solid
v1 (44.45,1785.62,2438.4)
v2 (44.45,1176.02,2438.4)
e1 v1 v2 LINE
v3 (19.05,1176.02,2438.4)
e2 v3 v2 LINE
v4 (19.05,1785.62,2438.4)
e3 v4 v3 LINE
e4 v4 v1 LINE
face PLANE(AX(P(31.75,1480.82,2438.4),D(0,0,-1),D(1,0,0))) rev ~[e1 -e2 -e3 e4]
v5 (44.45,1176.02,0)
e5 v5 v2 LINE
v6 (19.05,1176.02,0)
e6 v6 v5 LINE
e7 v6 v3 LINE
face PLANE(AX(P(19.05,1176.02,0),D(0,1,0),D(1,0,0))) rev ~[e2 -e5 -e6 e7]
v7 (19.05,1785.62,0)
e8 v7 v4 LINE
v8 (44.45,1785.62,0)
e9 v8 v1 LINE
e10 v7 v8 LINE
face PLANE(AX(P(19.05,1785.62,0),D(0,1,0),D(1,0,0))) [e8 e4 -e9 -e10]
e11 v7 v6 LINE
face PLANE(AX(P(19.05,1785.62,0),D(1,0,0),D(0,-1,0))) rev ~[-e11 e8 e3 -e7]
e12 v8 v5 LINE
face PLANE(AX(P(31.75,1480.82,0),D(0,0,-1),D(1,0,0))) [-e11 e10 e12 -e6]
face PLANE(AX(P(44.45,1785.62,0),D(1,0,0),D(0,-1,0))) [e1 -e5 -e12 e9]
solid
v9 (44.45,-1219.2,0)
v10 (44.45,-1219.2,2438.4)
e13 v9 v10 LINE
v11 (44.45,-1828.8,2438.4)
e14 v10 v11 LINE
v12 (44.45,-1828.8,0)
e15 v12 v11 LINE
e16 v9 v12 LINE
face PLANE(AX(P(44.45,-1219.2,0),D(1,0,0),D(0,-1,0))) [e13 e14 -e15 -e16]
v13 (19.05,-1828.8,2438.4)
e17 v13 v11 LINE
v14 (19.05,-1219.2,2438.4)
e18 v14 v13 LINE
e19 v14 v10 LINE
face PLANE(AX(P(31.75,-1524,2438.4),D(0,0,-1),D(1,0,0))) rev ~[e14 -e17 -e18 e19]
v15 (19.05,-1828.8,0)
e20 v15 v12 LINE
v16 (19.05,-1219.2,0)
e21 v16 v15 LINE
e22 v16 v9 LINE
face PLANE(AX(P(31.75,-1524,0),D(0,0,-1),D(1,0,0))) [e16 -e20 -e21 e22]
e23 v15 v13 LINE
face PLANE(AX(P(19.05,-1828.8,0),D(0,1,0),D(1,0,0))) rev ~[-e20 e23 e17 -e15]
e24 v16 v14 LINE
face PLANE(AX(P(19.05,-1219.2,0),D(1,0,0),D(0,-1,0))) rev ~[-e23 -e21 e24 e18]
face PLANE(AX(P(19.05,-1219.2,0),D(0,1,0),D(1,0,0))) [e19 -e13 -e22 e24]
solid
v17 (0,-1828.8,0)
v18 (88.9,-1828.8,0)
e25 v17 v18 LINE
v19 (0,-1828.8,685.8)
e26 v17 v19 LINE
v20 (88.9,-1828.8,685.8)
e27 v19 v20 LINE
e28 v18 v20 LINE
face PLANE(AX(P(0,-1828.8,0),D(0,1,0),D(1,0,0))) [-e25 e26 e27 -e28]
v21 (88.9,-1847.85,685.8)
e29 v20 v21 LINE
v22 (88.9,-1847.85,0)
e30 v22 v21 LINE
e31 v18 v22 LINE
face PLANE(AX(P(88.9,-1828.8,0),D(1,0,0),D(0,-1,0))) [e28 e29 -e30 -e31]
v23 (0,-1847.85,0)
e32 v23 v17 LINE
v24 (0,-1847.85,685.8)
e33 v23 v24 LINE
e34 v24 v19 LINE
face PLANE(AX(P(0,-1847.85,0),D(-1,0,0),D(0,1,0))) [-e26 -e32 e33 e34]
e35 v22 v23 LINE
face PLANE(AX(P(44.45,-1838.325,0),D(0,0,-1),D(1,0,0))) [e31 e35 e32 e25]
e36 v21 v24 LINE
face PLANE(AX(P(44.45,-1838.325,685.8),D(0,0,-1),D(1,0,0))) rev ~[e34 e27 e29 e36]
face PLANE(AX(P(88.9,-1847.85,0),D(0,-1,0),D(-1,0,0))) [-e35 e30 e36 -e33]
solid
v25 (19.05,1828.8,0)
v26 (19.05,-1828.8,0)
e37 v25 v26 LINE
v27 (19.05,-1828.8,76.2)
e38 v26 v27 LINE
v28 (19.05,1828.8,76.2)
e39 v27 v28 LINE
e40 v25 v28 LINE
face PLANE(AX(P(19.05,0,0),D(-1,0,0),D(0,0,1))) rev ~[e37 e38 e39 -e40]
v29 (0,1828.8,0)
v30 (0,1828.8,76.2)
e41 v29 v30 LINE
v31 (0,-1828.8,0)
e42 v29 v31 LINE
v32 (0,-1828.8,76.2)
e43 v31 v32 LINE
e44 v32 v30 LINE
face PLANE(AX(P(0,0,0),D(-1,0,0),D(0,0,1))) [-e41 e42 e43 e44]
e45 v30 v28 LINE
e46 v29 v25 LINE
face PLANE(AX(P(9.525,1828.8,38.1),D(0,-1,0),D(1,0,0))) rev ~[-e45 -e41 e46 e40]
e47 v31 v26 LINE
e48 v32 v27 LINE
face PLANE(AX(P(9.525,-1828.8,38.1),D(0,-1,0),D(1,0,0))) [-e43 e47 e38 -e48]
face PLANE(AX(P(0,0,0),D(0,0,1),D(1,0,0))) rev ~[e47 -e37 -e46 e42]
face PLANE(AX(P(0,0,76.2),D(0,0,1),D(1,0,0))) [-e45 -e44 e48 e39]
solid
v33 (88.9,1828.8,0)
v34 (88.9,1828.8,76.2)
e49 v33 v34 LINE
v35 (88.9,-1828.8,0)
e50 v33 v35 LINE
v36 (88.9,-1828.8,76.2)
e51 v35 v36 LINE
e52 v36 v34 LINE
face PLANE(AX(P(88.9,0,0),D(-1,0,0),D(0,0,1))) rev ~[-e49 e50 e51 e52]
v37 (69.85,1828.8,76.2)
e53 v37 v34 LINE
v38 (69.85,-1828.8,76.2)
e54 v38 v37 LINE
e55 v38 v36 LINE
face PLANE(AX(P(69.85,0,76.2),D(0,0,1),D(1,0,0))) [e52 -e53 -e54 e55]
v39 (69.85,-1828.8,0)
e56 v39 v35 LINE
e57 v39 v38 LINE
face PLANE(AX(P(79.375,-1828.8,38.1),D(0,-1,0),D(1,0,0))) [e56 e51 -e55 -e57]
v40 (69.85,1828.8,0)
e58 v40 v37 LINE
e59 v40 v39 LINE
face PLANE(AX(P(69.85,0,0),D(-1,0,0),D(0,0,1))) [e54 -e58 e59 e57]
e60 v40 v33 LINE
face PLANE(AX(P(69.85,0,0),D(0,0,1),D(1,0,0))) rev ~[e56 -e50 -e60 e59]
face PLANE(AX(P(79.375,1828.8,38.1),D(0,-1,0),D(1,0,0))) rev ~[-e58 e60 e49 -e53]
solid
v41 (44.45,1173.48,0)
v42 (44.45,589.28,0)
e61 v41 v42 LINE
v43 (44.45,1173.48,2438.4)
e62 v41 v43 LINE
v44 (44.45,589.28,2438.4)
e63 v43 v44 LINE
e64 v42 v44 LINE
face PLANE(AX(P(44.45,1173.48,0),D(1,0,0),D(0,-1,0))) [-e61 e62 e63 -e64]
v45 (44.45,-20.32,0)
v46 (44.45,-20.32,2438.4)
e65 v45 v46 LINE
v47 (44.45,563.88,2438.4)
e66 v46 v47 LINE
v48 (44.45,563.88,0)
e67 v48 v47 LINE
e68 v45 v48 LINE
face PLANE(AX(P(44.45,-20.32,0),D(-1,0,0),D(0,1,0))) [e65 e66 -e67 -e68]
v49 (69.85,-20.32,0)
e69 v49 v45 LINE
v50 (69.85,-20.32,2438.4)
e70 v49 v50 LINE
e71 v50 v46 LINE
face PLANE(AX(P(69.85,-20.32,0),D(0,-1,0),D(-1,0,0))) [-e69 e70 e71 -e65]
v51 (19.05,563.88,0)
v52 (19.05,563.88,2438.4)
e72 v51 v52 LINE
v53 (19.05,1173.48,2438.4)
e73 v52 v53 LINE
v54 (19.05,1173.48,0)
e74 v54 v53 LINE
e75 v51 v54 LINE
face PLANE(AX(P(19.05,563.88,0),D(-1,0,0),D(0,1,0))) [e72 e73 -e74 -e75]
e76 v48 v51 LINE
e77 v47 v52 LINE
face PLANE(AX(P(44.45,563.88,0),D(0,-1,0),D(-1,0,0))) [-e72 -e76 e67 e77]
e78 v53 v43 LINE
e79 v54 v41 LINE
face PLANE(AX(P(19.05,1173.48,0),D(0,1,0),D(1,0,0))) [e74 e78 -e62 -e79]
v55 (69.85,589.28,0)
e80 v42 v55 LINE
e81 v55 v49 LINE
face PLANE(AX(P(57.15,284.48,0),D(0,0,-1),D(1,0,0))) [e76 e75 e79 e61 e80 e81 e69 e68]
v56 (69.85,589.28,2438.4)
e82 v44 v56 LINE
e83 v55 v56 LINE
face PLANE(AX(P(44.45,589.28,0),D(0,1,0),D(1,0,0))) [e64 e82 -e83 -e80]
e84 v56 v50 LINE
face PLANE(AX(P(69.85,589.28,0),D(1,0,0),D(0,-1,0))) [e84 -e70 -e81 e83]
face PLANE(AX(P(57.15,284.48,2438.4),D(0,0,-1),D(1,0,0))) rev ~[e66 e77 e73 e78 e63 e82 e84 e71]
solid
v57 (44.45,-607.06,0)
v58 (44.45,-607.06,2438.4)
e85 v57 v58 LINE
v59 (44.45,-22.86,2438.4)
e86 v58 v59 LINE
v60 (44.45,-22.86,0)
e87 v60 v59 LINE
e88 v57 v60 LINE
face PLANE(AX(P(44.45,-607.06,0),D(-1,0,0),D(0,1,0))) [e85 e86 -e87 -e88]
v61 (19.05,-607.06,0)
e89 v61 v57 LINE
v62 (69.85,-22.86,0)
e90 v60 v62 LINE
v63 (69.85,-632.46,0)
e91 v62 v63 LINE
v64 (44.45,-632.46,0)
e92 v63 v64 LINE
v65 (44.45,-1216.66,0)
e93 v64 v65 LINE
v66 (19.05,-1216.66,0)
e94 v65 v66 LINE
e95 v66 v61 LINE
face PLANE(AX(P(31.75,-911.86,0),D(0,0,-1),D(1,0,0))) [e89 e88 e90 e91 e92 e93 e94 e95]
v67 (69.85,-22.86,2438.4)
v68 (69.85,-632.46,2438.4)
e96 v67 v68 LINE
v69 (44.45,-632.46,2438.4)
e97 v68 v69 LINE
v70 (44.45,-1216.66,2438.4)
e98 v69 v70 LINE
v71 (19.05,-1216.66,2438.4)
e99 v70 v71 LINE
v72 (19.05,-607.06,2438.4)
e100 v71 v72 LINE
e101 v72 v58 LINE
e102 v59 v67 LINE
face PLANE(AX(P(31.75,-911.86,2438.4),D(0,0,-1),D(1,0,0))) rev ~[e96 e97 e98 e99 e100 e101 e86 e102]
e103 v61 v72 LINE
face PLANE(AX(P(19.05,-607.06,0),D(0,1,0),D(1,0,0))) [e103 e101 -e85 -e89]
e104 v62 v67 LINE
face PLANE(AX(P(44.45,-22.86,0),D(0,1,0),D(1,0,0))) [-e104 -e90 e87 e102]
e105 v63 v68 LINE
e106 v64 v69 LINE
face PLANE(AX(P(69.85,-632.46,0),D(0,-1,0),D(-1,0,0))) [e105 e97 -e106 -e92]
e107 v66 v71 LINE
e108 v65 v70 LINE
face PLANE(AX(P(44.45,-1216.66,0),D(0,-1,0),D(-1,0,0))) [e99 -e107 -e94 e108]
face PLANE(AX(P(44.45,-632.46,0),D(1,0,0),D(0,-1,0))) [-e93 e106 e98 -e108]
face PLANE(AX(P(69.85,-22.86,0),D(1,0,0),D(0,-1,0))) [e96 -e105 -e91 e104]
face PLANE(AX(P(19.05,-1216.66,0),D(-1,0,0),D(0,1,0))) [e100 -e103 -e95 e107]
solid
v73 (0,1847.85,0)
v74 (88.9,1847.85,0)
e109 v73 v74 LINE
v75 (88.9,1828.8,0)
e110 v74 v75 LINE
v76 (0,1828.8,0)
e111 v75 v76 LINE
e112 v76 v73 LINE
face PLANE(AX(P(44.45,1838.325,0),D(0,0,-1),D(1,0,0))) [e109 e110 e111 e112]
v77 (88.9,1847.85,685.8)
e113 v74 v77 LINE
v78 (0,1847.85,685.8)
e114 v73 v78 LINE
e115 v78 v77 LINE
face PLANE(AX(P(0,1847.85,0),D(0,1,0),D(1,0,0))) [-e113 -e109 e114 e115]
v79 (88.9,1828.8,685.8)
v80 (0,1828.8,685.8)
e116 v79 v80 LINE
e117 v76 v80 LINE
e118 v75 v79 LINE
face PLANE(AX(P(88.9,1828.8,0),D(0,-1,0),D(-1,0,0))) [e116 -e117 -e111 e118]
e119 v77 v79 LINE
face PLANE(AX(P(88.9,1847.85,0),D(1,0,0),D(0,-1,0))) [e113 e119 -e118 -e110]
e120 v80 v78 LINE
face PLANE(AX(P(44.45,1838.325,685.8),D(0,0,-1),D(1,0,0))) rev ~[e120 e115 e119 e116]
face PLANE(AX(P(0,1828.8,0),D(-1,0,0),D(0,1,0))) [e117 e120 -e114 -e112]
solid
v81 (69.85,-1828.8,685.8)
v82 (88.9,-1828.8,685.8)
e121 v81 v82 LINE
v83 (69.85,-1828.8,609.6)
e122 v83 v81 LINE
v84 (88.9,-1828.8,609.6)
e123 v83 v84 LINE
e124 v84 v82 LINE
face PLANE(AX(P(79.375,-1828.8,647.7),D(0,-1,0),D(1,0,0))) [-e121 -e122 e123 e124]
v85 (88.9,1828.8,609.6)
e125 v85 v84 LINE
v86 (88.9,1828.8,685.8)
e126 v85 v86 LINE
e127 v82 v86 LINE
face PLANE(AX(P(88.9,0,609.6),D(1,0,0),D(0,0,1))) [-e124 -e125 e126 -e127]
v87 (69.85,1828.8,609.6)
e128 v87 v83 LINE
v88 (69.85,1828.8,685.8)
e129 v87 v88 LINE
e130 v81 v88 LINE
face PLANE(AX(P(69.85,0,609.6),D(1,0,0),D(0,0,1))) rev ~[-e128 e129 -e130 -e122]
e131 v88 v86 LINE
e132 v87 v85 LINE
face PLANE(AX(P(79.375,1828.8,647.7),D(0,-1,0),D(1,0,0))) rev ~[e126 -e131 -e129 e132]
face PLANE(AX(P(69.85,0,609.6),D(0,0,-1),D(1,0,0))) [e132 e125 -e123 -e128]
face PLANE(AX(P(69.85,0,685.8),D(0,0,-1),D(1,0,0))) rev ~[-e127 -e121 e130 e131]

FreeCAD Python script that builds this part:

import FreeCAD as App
import Part
import Sketcher
from FreeCAD import Vector
Q = App.Units.Quantity


def add_polygon(sketch, points):
    """Adds a closed chain of lines whose ends are joined by coincident constraints."""
    first, n = sketch.GeometryCount, len(points)
    for a, b in zip(points, points[1:] + points[:1]):
        sketch.addGeometry(Part.LineSegment(App.Vector(*a, 0), App.Vector(*b, 0)), False)
    for i in range(n):
        sketch.addConstraint(Sketcher.Constraint("Coincident", first + i, 2, first + (i + 1) % n, 1))

doc = App.newDocument("Part")
body = doc.addObject("PartDesign::Body", "Body")
body.AllowCompound = True

# Sketch on XZ plane
sketch1 = body.newObject("Sketcher::SketchObject", "Sketch")
sketch1.AttachmentSupport = (doc.getObject("XZ_Plane"), [""])
sketch1.MapMode = "FlatFace"
add_polygon(sketch1, [(0, 76), (0, 0), (19, 0), (19, 76)])  # lines 0-3
add_polygon(sketch1, [(70, 76), (70, 0), (89, 0), (89, 76)])  # lines 4-7
add_polygon(sketch1, [(70, 686), (70, 610), (89, 610), (89, 686)])  # lines 8-11
sketch1.addConstraint(Sketcher.Constraint("Vertical", 0))
sketch1.addConstraint(Sketcher.Constraint("Horizontal", 1))
sketch1.addConstraint(Sketcher.Constraint("Vertical", 2))
sketch1.addConstraint(Sketcher.Constraint("Horizontal", 3))
sketch1.addConstraint(Sketcher.Constraint("Vertical", 4))
sketch1.addConstraint(Sketcher.Constraint("Horizontal", 5))
sketch1.addConstraint(Sketcher.Constraint("Vertical", 6))
sketch1.addConstraint(Sketcher.Constraint("Horizontal", 7))
sketch1.addConstraint(Sketcher.Constraint("Vertical", 8))
sketch1.addConstraint(Sketcher.Constraint("Horizontal", 9))
sketch1.addConstraint(Sketcher.Constraint("Vertical", 10))
sketch1.addConstraint(Sketcher.Constraint("Horizontal", 11))
sketch1.addConstraint(Sketcher.Constraint("Coincident", 0, 2, -1, 1))
sketch1.addConstraint(Sketcher.Constraint("PointOnObject", 4, 2, -1))
sketch1.addConstraint(Sketcher.Constraint("Horizontal", 3, 2, 6, 2))
sketch1.addConstraint(Sketcher.Constraint("Vertical", 7, 2, 8, 2))
sketch1.addConstraint(Sketcher.Constraint("Vertical", 6, 2, 9, 2))
sketch1.addConstraint(Sketcher.Constraint("Equal", 3, 5))
sketch1.addConstraint(Sketcher.Constraint("Equal", 6, 8))
sketch1.addConstraint(Sketcher.Constraint("DistanceY", 0, 2, 0, 1, Q("3 in")))
sketch1.addConstraint(Sketcher.Constraint("DistanceY", -1, 1, 8, 2, Q("24 in")))
sketch1.addConstraint(Sketcher.Constraint("DistanceX", 1, 2, 4, 2, Q("2 in")))
sketch1.addConstraint(Sketcher.Constraint("DistanceX", 1, 1, 1, 2, Q("0.75 in")))
pad1 = body.newObject("PartDesign::Pad", "Pad")
pad1.Profile = sketch1
pad1.Length = Q("144 in")
pad1.Midplane = True
body2 = doc.addObject("PartDesign::Body", "Body001")
body2.AllowCompound = True

# Sketch on XY plane
sketch2 = body2.newObject("Sketcher::SketchObject", "Sketch001")
sketch2.AttachmentSupport = (doc.getObject("XY_Plane001"), [""])
sketch2.MapMode = "FlatFace"
add_polygon(sketch2, [(19, -1829), (19, -1219), (44, -1219), (44, -1829)])  # lines 0-3
add_polygon(sketch2, [(44, -1217), (19, -1217), (19, -607), (44, -607), (44, -23), (70, -23), (70, -632), (44, -632)])  # lines 4-11
add_polygon(sketch2, [(44, -20), (44, 564), (19, 564), (19, 1173), (44, 1173), (44, 589), (70, 589), (70, -20)])  # lines 12-19
add_polygon(sketch2, [(19, 1176), (19, 1786), (44, 1786), (44, 1176)])  # lines 20-23
sketch2.addConstraint(Sketcher.Constraint("Vertical", 0))
sketch2.addConstraint(Sketcher.Constraint("Horizontal", 1))
sketch2.addConstraint(Sketcher.Constraint("Vertical", 2))
sketch2.addConstraint(Sketcher.Constraint("Horizontal", 3))
sketch2.addConstraint(Sketcher.Constraint("Horizontal", 4))
sketch2.addConstraint(Sketcher.Constraint("Vertical", 5))
sketch2.addConstraint(Sketcher.Constraint("Horizontal", 6))
sketch2.addConstraint(Sketcher.Constraint("Vertical", 7))
sketch2.addConstraint(Sketcher.Constraint("Horizontal", 8))
sketch2.addConstraint(Sketcher.Constraint("Vertical", 9))
sketch2.addConstraint(Sketcher.Constraint("Horizontal", 10))
sketch2.addConstraint(Sketcher.Constraint("Vertical", 11))
sketch2.addConstraint(Sketcher.Constraint("Vertical", 12))
sketch2.addConstraint(Sketcher.Constraint("Horizontal", 13))
sketch2.addConstraint(Sketcher.Constraint("Vertical", 14))
sketch2.addConstraint(Sketcher.Constraint("Horizontal", 15))
sketch2.addConstraint(Sketcher.Constraint("Vertical", 16))
sketch2.addConstraint(Sketcher.Constraint("Horizontal", 17))
sketch2.addConstraint(Sketcher.Constraint("Vertical", 18))
sketch2.addConstraint(Sketcher.Constraint("Horizontal", 19))
sketch2.addConstraint(Sketcher.Constraint("Vertical", 20))
sketch2.addConstraint(Sketcher.Constraint("Horizontal", 21))
sketch2.addConstraint(Sketcher.Constraint("Vertical", 22))
sketch2.addConstraint(Sketcher.Constraint("Horizontal", 23))
sketch2.addConstraint(Sketcher.Constraint("Vertical", 3, 2, 4, 2))
sketch2.addConstraint(Sketcher.Constraint("Vertical", 2, 2, 6, 2))
sketch2.addConstraint(Sketcher.Constraint("Vertical", 7, 2, 10, 2))
sketch2.addConstraint(Sketcher.Constraint("Vertical", 11, 2, 12, 2))
sketch2.addConstraint(Sketcher.Constraint("Vertical", 5, 2, 13, 2))
sketch2.addConstraint(Sketcher.Constraint("Vertical", 12, 2, 15, 2))
sketch2.addConstraint(Sketcher.Constraint("Vertical", 9, 2, 17, 2))
sketch2.addConstraint(Sketcher.Constraint("Vertical", 14, 2, 20, 2))
sketch2.addConstraint(Sketcher.Constraint("Vertical", 19, 2, 21, 2))
sketch2.addConstraint(Sketcher.Constraint("Equal", 6, 8))
sketch2.addConstraint(Sketcher.Constraint("Equal", 2, 5))
sketch2.addConstraint(Sketcher.Constraint("Equal", 5, 9))
sketch2.addConstraint(Sketcher.Constraint("Equal", 11, 12))
sketch2.addConstraint(Sketcher.Constraint("Equal", 9, 14))
sketch2.addConstraint(Sketcher.Constraint("Equal", 12, 16))
sketch2.addConstraint(Sketcher.Constraint("Equal", 18, 20))
sketch2.addConstraint(Sketcher.Constraint("DistanceX", 1, 1, 1, 2, Q("1 in")))
sketch2.addConstraint(Sketcher.Constraint("DistanceY", 0, 1, 0, 2, Q("24 in")))
sketch2.addConstraint(Sketcher.Constraint("DistanceY", 7, 1, 7, 2, Q("23 in")))
sketch2.addConstraint(Sketcher.Constraint("DistanceY", 0, 2, -1, 1, Q("48 in")))
sketch2.addConstraint(Sketcher.Constraint("DistanceY", 4, 2, -1, 1, Q("47.9 in")))
sketch2.addConstraint(Sketcher.Constraint("DistanceY", -1, 1, 12, 2, Q("22.2 in")))
sketch2.addConstraint(Sketcher.Constraint("DistanceY", -1, 1, 20, 2, Q("70.3 in")))
sketch2.addConstraint(Sketcher.Constraint("DistanceX", -1, 1, 0, 2, Q("0.75 in")))
pad2 = body2.newObject("PartDesign::Pad", "Pad001")
pad2.Profile = sketch2
pad2.Length = Q("96 in")
body3 = doc.addObject("PartDesign::Body", "Body002")
body3.AllowCompound = True

# Sketch on XY plane
sketch3 = body3.newObject("Sketcher::SketchObject", "Sketch002")
sketch3.AttachmentSupport = (doc.getObject("XY_Plane002"), [""])
sketch3.MapMode = "FlatFace"
add_polygon(sketch3, [(0, 1829), (0, 1848), (89, 1848), (89, 1829)])  # lines 0-3
add_polygon(sketch3, [(0, -1848), (0, -1829), (89, -1829), (89, -1848)])  # lines 4-7
sketch3.addConstraint(Sketcher.Constraint("Vertical", 0))
sketch3.addConstraint(Sketcher.Constraint("Horizontal", 1))
sketch3.addConstraint(Sketcher.Constraint("Vertical", 2))
sketch3.addConstraint(Sketcher.Constraint("Horizontal", 3))
sketch3.addConstraint(Sketcher.Constraint("Vertical", 4))
sketch3.addConstraint(Sketcher.Constraint("Horizontal", 5))
sketch3.addConstraint(Sketcher.Constraint("Vertical", 6))
sketch3.addConstraint(Sketcher.Constraint("Horizontal", 7))
sketch3.addConstraint(Sketcher.Constraint("Symmetric", 3, 2, 4, 2, -1, 1))
sketch3.addConstraint(Sketcher.Constraint("Symmetric", 1, 2, 6, 2, -1))
sketch3.addConstraint(Sketcher.Constraint("PointOnObject", 0, 2, -2))
sketch3.addConstraint(Sketcher.Constraint("DistanceX", 1, 1, 1, 2, Q("3.5 in")))
sketch3.addConstraint(Sketcher.Constraint("DistanceY", -1, 1, 2, 2, Q("72 in")))
sketch3.addConstraint(Sketcher.Constraint("DistanceY", 0, 1, 0, 2, Q("0.75 in")))
pad3 = body3.newObject("PartDesign::Pad", "Pad002")
pad3.Profile = sketch3
pad3.Length = Q("27 in")

doc.recompute()
